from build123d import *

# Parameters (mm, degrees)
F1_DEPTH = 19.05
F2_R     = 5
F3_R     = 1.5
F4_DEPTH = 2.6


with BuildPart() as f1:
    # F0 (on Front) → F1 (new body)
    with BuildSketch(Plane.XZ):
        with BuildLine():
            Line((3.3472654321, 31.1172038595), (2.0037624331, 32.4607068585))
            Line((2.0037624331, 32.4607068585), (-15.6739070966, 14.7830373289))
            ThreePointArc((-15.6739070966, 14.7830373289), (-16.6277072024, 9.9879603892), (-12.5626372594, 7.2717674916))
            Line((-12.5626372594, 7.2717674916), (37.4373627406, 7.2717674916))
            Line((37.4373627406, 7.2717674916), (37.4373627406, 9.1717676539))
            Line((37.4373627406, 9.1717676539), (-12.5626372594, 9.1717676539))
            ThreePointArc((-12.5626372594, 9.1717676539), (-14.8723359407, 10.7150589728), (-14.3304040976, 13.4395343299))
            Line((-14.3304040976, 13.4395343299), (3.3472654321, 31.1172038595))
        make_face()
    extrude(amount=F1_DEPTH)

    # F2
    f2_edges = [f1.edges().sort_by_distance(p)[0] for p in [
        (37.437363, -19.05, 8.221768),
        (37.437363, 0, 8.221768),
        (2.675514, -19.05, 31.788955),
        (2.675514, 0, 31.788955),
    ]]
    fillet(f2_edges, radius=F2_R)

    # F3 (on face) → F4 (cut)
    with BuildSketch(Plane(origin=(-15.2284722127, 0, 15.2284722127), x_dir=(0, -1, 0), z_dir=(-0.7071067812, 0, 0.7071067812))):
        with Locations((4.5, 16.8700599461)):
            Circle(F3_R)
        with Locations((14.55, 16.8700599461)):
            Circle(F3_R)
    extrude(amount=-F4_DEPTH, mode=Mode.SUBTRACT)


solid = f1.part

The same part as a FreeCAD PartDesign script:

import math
import FreeCAD as App
import Part
import Sketcher
Q = App.Units.Quantity


def edges_at(feature, points):
    """Names of the edges that pass closest to the given points."""
    edges = feature.Shape.Edges
    near = lambda p: min(range(len(edges)), key=lambda i: edges[i].distToShape(Part.Vertex(*p))[0])
    return sorted({f"Edge{near(p) + 1}" for p in points})

doc = App.newDocument("Part")
params = doc.addObject("Spreadsheet::Sheet", "Params")
for row, (alias, value) in enumerate([
    ("sketch1_radius", "4.4 mm"),
    ("sketch1_radius2", "2.5 mm"),
    ("sketch1_width", "50 mm"),
    ("sketch1_length", "25 mm"),
    ("pad1_length", "19.05 mm"),
    ("fillet_radius", "5 mm"),
    ("sketch2_diameter", "3 mm"),
    ("pocket1_length", "2.6 mm"),
], start=1):
    params.set(f"A{row}", alias)
    params.set(f"B{row}", "=" + value)
    params.setAlias(f"B{row}", alias)

body = doc.addObject("PartDesign::Body", "Body")

# Sketch on XZ plane
sketch1 = body.newObject("Sketcher::SketchObject", "Sketch")
sketch1.AttachmentSupport = (doc.getObject("XZ_Plane"), [""])
sketch1.MapMode = "FlatFace"
sketch1.addGeometry([
    Part.LineSegment(App.Vector(3.3, 31.1, 0), App.Vector(2, 32.5, 0)),  # 0
    Part.LineSegment(App.Vector(2, 32.5, 0), App.Vector(-15.7, 14.8, 0)),  # 1
    Part.ArcOfCircle(Part.Circle(App.Vector(-12.6, 11.7, 0), App.Vector(0, 0, 1), 4.4), math.radians(135), math.radians(270)),  # 2
    Part.LineSegment(App.Vector(-12.6, 7.3, 0), App.Vector(37.4, 7.3, 0)),  # 3
    Part.LineSegment(App.Vector(37.4, 7.3, 0), App.Vector(37.4, 9.2, 0)),  # 4
    Part.LineSegment(App.Vector(37.4, 9.2, 0), App.Vector(-12.6, 9.2, 0)),  # 5
    Part.ArcOfCircle(Part.Circle(App.Vector(-12.6, 11.7, 0), App.Vector(0, 0, 1), 2.5), math.radians(135), math.radians(270)),  # 6
    Part.LineSegment(App.Vector(-14.3, 13.4, 0), App.Vector(3.3, 31.1, 0)),  # 7
], False)
sketch1.addConstraint([
    Sketcher.Constraint("Coincident", 0, 2, 1, 1),
    Sketcher.Constraint("Tangent", 1, 2, 2, 1),
    Sketcher.Constraint("Tangent", 2, 2, 3, 1),
    Sketcher.Constraint("Coincident", 3, 2, 4, 1),
    Sketcher.Constraint("Coincident", 4, 2, 5, 1),
    Sketcher.Constraint("Tangent", 5, 2, 6, 2),
    Sketcher.Constraint("Tangent", 6, 1, 7, 1),
    Sketcher.Constraint("Coincident", 7, 2, 0, 1),
    Sketcher.Constraint("Horizontal", 3),
    Sketcher.Constraint("Vertical", 4),
    Sketcher.Constraint("Horizontal", 5),
    Sketcher.Constraint("Coincident", 6, 3, 2, 3),
    Sketcher.Constraint("Perpendicular", 0, 1),
    Sketcher.Constraint("Parallel", 1, 7),
    Sketcher.Constraint("Radius", 2, Q("4.4 mm")),
    Sketcher.Constraint("Radius", 6, Q("2.5 mm")),
    Sketcher.Constraint("DistanceX", 3, 1, 3, 2, Q("50 mm")),
    Sketcher.Constraint("Angle", 0, Q("135 deg")),
    Sketcher.Constraint("Distance", 1, Q("25 mm")),
    Sketcher.Constraint("DistanceX", 2, 3, -1, 1, Q("12.562637 mm")),
    Sketcher.Constraint("DistanceY", -1, 1, 2, 3, Q("11.671767 mm")),
])
sketch1.setExpression("Constraints[14]", "Params.sketch1_radius")
sketch1.setExpression("Constraints[15]", "Params.sketch1_radius2")
sketch1.setExpression("Constraints[16]", "Params.sketch1_width")
sketch1.setExpression("Constraints[18]", "Params.sketch1_length")
pad1 = body.newObject("PartDesign::Pad", "Pad")
pad1.Profile = sketch1
pad1.setExpression("Length", "Params.pad1_length")
doc.recompute()

fillet = body.newObject("PartDesign::Fillet", "Fillet")
fillet.Base = (pad1, edges_at(pad1, [
    (37.437, -19.05, 8.222),
    (37.437, 0, 8.222),
    (2.676, -19.05, 31.789),
    (2.676, 0, 31.789),
]))
fillet.setExpression("Radius", "Params.fillet_radius")

# Sketch on an angled plane
sketch2 = body.newObject("Sketcher::SketchObject", "Sketch001")
sketch2.Placement = App.Placement(App.Vector(-15.228472, 0, 15.228472), App.Rotation(App.Vector(0, -1, 0), App.Vector(0.707106781, 0, 0.707106781), App.Vector(-0.707106781, 0, 0.707106781), "ZXY"))
sketch2.addGeometry([
    Part.Circle(App.Vector(4.5, 16.9, 0), App.Vector(0, 0, 1), 1.5),
    Part.Circle(App.Vector(14.6, 16.9, 0), App.Vector(0, 0, 1), 1.5),
], False)
sketch2.addConstraint([
    Sketcher.Constraint("Equal", 0, 1),
    Sketcher.Constraint("Horizontal", 0, 3, 1, 3),
    Sketcher.Constraint("Diameter", 0, Q("3 mm")),
    Sketcher.Constraint("DistanceX", -1, 1, 0, 3, Q("4.5 mm")),
    Sketcher.Constraint("DistanceX", -1, 1, 1, 3, Q("14.55 mm")),
    Sketcher.Constraint("DistanceY", -1, 1, 0, 3, Q("16.87006 mm")),
])
sketch2.setExpression("Constraints[2]", "Params.sketch2_diameter")
pocket1 = body.newObject("PartDesign::Pocket", "Pocket")
pocket1.Profile = sketch2
pocket1.setExpression("Length", "Params.pocket1_length")

doc.recompute()
